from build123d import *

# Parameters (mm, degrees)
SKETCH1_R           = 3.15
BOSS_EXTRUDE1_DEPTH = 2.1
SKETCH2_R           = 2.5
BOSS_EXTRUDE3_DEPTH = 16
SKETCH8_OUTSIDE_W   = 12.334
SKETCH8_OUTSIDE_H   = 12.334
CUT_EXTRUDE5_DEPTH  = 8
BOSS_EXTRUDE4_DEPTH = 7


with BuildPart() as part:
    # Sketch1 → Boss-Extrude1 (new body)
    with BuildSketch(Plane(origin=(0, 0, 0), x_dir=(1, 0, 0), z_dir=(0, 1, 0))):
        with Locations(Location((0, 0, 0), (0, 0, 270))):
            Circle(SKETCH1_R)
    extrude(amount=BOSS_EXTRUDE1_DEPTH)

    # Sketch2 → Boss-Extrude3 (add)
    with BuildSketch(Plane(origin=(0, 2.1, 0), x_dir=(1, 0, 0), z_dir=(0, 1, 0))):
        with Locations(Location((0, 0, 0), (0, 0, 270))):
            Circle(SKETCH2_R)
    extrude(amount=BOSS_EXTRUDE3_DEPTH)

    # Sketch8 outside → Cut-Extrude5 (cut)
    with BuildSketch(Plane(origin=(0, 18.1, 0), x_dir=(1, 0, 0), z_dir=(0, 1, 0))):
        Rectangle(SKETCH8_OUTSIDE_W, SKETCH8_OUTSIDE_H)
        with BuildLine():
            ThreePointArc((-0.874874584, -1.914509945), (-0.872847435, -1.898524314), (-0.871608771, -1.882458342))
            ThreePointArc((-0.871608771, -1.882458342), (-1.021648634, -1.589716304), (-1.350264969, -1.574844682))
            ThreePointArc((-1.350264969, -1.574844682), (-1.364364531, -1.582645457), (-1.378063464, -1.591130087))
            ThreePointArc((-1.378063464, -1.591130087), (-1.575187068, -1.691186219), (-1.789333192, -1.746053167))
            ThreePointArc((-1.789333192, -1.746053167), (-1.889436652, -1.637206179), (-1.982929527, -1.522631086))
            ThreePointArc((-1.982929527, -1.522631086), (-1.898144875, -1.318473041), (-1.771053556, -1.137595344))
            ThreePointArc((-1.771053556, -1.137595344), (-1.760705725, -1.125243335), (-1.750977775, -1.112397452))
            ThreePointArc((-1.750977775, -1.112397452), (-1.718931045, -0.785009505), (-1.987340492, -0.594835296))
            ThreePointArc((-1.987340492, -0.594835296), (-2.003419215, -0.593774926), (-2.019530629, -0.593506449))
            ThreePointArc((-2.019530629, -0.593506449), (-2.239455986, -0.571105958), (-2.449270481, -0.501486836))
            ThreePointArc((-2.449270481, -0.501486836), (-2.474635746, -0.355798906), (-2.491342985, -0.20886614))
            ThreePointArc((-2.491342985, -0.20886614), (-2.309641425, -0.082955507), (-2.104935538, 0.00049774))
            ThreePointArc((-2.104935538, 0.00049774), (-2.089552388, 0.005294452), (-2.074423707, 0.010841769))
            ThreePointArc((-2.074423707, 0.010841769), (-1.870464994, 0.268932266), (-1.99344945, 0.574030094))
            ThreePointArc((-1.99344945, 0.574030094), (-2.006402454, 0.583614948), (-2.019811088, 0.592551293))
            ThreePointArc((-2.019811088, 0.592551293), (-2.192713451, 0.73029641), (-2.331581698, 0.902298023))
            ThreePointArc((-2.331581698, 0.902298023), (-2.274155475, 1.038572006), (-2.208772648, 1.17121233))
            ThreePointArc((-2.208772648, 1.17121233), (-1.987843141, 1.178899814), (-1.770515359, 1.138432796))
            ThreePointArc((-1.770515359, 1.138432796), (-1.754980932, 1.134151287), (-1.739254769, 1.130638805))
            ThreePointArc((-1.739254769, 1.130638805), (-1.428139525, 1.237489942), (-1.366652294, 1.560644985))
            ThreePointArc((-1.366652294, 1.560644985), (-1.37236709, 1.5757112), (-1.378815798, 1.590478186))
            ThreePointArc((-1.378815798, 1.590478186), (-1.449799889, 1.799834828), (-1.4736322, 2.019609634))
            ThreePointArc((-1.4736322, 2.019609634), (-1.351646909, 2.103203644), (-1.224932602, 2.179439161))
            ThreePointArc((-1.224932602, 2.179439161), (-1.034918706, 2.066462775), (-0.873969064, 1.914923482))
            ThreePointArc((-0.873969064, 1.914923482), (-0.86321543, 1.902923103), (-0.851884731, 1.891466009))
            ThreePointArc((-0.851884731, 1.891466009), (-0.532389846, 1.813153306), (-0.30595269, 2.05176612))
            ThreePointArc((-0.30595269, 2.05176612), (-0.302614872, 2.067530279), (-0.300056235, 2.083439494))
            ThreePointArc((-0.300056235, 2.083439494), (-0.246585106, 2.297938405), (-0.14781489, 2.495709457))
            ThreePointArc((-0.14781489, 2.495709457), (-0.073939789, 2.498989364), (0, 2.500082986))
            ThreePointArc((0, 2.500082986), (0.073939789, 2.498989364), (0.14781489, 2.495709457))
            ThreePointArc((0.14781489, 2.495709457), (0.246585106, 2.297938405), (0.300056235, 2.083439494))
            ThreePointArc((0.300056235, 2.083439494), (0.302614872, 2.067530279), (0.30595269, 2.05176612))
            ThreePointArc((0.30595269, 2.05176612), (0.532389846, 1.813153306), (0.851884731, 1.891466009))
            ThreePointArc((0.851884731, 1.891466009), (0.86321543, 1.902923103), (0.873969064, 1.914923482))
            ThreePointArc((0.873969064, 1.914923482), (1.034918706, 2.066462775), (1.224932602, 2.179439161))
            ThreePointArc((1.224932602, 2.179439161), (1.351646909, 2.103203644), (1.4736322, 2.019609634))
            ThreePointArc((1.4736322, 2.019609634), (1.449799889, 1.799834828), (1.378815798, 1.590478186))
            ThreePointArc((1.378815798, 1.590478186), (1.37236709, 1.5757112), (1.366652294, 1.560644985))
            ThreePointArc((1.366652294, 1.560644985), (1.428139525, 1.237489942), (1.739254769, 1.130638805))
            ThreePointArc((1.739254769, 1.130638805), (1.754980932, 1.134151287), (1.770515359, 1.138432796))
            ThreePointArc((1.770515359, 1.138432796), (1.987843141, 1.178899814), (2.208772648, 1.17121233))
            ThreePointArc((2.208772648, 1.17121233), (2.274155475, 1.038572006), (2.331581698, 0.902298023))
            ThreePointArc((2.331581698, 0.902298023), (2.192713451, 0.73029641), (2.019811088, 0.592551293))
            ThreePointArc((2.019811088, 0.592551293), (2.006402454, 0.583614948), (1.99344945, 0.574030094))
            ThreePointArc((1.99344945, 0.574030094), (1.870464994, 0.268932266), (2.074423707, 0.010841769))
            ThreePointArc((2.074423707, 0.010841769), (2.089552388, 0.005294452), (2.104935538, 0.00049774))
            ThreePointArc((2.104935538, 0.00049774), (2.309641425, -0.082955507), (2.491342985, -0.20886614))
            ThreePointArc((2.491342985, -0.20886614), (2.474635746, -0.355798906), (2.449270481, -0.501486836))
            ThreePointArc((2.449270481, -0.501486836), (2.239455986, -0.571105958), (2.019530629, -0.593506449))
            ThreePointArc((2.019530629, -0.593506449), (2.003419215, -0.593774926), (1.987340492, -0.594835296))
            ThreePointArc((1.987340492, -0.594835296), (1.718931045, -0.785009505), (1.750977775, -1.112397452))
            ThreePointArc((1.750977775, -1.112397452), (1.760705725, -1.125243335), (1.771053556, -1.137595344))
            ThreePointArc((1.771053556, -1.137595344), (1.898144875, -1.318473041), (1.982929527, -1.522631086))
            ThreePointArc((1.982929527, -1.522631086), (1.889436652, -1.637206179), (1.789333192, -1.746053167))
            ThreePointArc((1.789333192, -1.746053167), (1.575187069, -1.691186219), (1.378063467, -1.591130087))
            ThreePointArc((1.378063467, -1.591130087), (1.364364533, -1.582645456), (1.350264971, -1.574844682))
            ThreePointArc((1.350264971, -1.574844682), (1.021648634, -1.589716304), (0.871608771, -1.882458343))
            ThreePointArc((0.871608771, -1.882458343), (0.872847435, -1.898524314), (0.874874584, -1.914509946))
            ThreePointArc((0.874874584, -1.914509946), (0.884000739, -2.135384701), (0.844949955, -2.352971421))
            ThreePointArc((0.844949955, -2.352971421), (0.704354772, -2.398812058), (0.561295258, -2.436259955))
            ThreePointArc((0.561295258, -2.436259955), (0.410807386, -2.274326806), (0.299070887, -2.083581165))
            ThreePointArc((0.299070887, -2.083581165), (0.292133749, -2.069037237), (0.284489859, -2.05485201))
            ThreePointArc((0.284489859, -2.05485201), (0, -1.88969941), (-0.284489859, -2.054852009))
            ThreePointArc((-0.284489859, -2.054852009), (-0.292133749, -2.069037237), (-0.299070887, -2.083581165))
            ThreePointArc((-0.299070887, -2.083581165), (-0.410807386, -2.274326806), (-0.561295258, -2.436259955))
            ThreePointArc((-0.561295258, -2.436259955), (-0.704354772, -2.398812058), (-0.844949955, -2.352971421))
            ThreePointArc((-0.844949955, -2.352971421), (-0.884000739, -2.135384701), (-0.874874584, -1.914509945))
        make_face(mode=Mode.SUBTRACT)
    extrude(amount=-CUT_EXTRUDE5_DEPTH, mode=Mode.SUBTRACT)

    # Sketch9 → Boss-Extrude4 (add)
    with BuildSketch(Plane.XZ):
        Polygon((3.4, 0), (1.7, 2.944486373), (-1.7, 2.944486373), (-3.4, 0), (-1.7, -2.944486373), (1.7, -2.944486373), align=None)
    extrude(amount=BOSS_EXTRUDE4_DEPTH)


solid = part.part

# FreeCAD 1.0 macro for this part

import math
import FreeCAD as App
import Part
import Sketcher
from FreeCAD import Vector
Q = App.Units.Quantity

doc = App.newDocument("Part")
params = doc.addObject("Spreadsheet::Sheet", "Params")
for row, (alias, value) in enumerate([
    ("sketch1_diameter", "6.3 mm"),
    ("pad1_length", "2.1 mm"),
    ("sketch2_diameter", "5 mm"),
    ("pad2_length", "16 mm"),
    ("pocket1_length", "8 mm"),
    ("sketch4_width", "3.4 mm"),
    ("sketch4_length", "3.4 mm"),
    ("pad3_length", "7 mm"),
], start=1):
    params.set(f"A{row}", alias)
    params.set(f"B{row}", "=" + value)
    params.setAlias(f"B{row}", alias)

body = doc.addObject("PartDesign::Body", "Body")

sketch1 = body.newObject("Sketcher::SketchObject", "Sketch")
sketch1.AttachmentSupport = (doc.getObject("XZ_Plane"), [""])
sketch1.MapMode = "FlatFace"
sketch1.addGeometry(Part.Circle(Vector(0, 0, 0), Vector(0, 0, 1), 3.15), False)
sketch1.addConstraint(Sketcher.Constraint("Coincident", 0, 3, -1, 1))
sketch1.addConstraint(Sketcher.Constraint("Diameter", 0, Q("6.3 mm")))
sketch1.setExpression("Constraints[1]", "Params.sketch1_diameter")
pad1 = body.newObject("PartDesign::Pad", "Pad")
pad1.Profile = sketch1
pad1.setExpression("Length", "Params.pad1_length")
pad1.Reversed = True

sketch2 = body.newObject("Sketcher::SketchObject", "Sketch001")
sketch2.AttachmentSupport = (doc.getObject("XZ_Plane"), [""])
sketch2.MapMode = "FlatFace"
sketch2.AttachmentOffset = App.Placement(Vector(0, 0, -2.1), App.Rotation())
sketch2.addGeometry(Part.Circle(Vector(0, 0, 0), Vector(0, 0, 1), 2.5), False)
sketch2.addConstraint(Sketcher.Constraint("Coincident", 0, 3, -1, 1))
sketch2.addConstraint(Sketcher.Constraint("Diameter", 0, Q("5 mm")))
sketch2.setExpression("Constraints[1]", "Params.sketch2_diameter")
pad2 = body.newObject("PartDesign::Pad", "Pad001")
pad2.Profile = sketch2
pad2.setExpression("Length", "Params.pad2_length")
pad2.Reversed = True

sketch3 = body.newObject("Sketcher::SketchObject", "Sketch002")
sketch3.AttachmentSupport = (doc.getObject("XZ_Plane"), [""])
sketch3.MapMode = "FlatFace"
sketch3.AttachmentOffset = App.Placement(Vector(0, 0, -18.1), App.Rotation())
sketch3.addGeometry(Part.LineSegment(Vector(-6.167, -6.167, 0), Vector(-6.167, 6.167, 0)), False)
sketch3.addGeometry(Part.LineSegment(Vector(-6.167, 6.167, 0), Vector(6.167, 6.167, 0)), False)
sketch3.addGeometry(Part.LineSegment(Vector(6.167, 6.167, 0), Vector(6.167, -6.167, 0)), False)
sketch3.addGeometry(Part.LineSegment(Vector(6.167, -6.167, 0), Vector(-6.167, -6.167, 0)), False)
sketch3.addGeometry(Part.ArcOfCircle(Part.Circle(Vector(0.12566, 2.066476, 0), Vector(0, 0, 1), 1.01201), math.radians(163.554967), math.radians(188.636364)), False)
sketch3.addGeometry(Part.ArcOfCircle(Part.Circle(Vector(-1.198766, 1.865316, 0), Vector(0, 0, 1), 0.327606), math.radians(2.999483), math.radians(8.636363)), False)
sketch3.addGeometry(Part.ArcOfCircle(Part.Circle(Vector(-1.198766, 1.865316, 0), Vector(0, 0, 1), 0.327606), math.radians(-117.544936), math.radians(2.999482)), False)
sketch3.addGeometry(Part.ArcOfCircle(Part.Circle(Vector(-1.198765, 1.865316, 0), Vector(0, 0, 1), 0.327606), math.radians(-123.181813), math.radians(-117.544943)), False)
sketch3.addGeometry(Part.ArcOfCircle(Part.Circle(Vector(-1.931934, 0.744141, 0), Vector(0, 0, 1), 1.01201), math.radians(56.818182), math.radians(81.899578)), False)
sketch3.addGeometry(Part.ArcOfCircle(Part.Circle(Vector(0, 0, 0), Vector(0, 0, 1), 2.500083), math.radians(135.701377), math.radians(142.480441)), False)
sketch3.addGeometry(Part.ArcOfCircle(Part.Circle(Vector(-1.011509, 1.806367, 0), Vector(0, 0, 1), 1.01201), math.radians(-163.71776), math.radians(-138.636363)), False)
sketch3.addGeometry(Part.ArcOfCircle(Part.Circle(Vector(-2.016932, 0.921102, 0), Vector(0, 0, 1), 0.327606), math.radians(35.726754), math.radians(41.363637)), False)
sketch3.addGeometry(Part.ArcOfCircle(Part.Circle(Vector(-2.016932, 0.921102, 0), Vector(0, 0, 1), 0.327606), math.radians(-84.817664), math.radians(35.726754)), False)
sketch3.addGeometry(Part.ArcOfCircle(Part.Circle(Vector(-2.016932, 0.921102, 0), Vector(0, 0, 1), 0.327606), math.radians(-90.454544), math.radians(-84.817665)), False)
sketch3.addGeometry(Part.ArcOfCircle(Part.Circle(Vector(-2.027559, -0.418471, 0), Vector(0, 0, 1), 1.01201), math.radians(89.545454), math.radians(114.626851)), False)
sketch3.addGeometry(Part.ArcOfCircle(Part.Circle(Vector(0, 0, 0), Vector(0, 0, 1), 2.500083), math.radians(168.42865), math.radians(175.207714)), False)
sketch3.addGeometry(Part.ArcOfCircle(Part.Circle(Vector(-1.827532, 0.97275, 0), Vector(0, 0, 1), 1.01201), math.radians(-130.990487), math.radians(-105.909091)), False)
sketch3.addGeometry(Part.ArcOfCircle(Part.Circle(Vector(-2.194736, -0.315556, 0), Vector(0, 0, 1), 0.327606), math.radians(68.454031), math.radians(74.090906)), False)
sketch3.addGeometry(Part.ArcOfCircle(Part.Circle(Vector(-2.194736, -0.315555, 0), Vector(0, 0, 1), 0.327606), math.radians(-52.090391), math.radians(68.454027)), False)
sketch3.addGeometry(Part.ArcOfCircle(Part.Circle(Vector(-2.194736, -0.315555, 0), Vector(0, 0, 1), 0.327606), math.radians(-57.727271), math.radians(-52.090394)), False)
sketch3.addGeometry(Part.ArcOfCircle(Part.Circle(Vector(-1.479449, -1.448222, 0), Vector(0, 0, 1), 1.01201), math.radians(122.272727), math.radians(147.354123)), False)
sketch3.addGeometry(Part.ArcOfCircle(Part.Circle(Vector(0, 0, 0), Vector(0, 0, 1), 2.500083), math.radians(-158.844078), math.radians(-152.065013)), False)
sketch3.addGeometry(Part.ArcOfCircle(Part.Circle(Vector(-2.063326, -0.169709, 0), Vector(0, 0, 1), 1.01201), math.radians(-98.263214), math.radians(-73.181818)), False)
sketch3.addGeometry(Part.ArcOfCircle(Part.Circle(Vector(-1.675727, -1.452026, 0), Vector(0, 0, 1), 0.327605), math.radians(101.181298), math.radians(106.818186)), False)
sketch3.addGeometry(Part.ArcOfCircle(Part.Circle(Vector(-1.675727, -1.452026, 0), Vector(0, 0, 1), 0.327606), math.radians(-19.363118), math.radians(101.1813)), False)
sketch3.addGeometry(Part.ArcOfCircle(Part.Circle(Vector(-1.675727, -1.452026, 0), Vector(0, 0, 1), 0.327605), math.radians(-25.000002), math.radians(-19.363115)), False)
sketch3.addGeometry(Part.ArcOfCircle(Part.Circle(Vector(-0.461624, -2.018172, 0), Vector(0, 0, 1), 1.01201), math.radians(155), math.radians(180.081396)), False)
sketch3.addGeometry(Part.ArcOfCircle(Part.Circle(Vector(0, 0, 0), Vector(0, 0, 1), 2.500083), math.radians(-126.116805), math.radians(-119.337741)), False)
sketch3.addGeometry(Part.ArcOfCircle(Part.Circle(Vector(-1.644028, -1.258287, 0), Vector(0, 0, 1), 1.01201), math.radians(-65.535942), math.radians(-40.454545)), False)
sketch3.addGeometry(Part.ArcOfCircle(Part.Circle(Vector(-0.624687, -2.127489, 0), Vector(0, 0, 1), 0.327606), math.radians(133.908575), math.radians(139.545451)), False)
sketch3.addGeometry(Part.ArcOfCircle(Part.Circle(Vector(-0.624687, -2.127489, 0), Vector(0, 0, 1), 0.327606), math.radians(13.364155), math.radians(133.908573)), False)
sketch3.addGeometry(Part.ArcOfCircle(Part.Circle(Vector(-0.624687, -2.127489, 0), Vector(0, 0, 1), 0.327606), math.radians(7.727271), math.radians(13.364155)), False)
sketch3.addGeometry(Part.ArcOfCircle(Part.Circle(Vector(0.702764, -1.947367, 0), Vector(0, 0, 1), 1.01201), math.radians(-172.272727), math.radians(-147.191331)), False)
sketch3.addGeometry(Part.ArcOfCircle(Part.Circle(Vector(0, 0.000001, 0), Vector(0, 0, 1), 2.500084), math.radians(-93.389531), math.radians(-90.000001)), False)
sketch3.addGeometry(Part.ArcOfCircle(Part.Circle(Vector(0, 0.000001, 0), Vector(0, 0, 1), 2.500084), math.radians(-89.999999), math.radians(-86.610469)), False)
sketch3.addGeometry(Part.ArcOfCircle(Part.Circle(Vector(-0.702764, -1.947367, 0), Vector(0, 0, 1), 1.01201), math.radians(-32.808669), math.radians(-7.727273)), False)
sketch3.addGeometry(Part.ArcOfCircle(Part.Circle(Vector(0.624687, -2.127489, 0), Vector(0, 0, 1), 0.327606), math.radians(166.635845), math.radians(172.272729)), False)
sketch3.addGeometry(Part.ArcOfCircle(Part.Circle(Vector(0.624687, -2.127489, 0), Vector(0, 0, 1), 0.327606), math.radians(46.091427), math.radians(166.635845)), False)
sketch3.addGeometry(Part.ArcOfCircle(Part.Circle(Vector(0.624687, -2.127489, 0), Vector(0, 0, 1), 0.327606), math.radians(40.454549), math.radians(46.091425)), False)
sketch3.addGeometry(Part.ArcOfCircle(Part.Circle(Vector(1.644028, -1.258287, 0), Vector(0, 0, 1), 1.01201), math.radians(-139.545455), math.radians(-114.464058)), False)
sketch3.addGeometry(Part.ArcOfCircle(Part.Circle(Vector(0, 0, 0), Vector(0, 0, 1), 2.500083), math.radians(-60.662259), math.radians(-53.883195)), False)
sketch3.addGeometry(Part.ArcOfCircle(Part.Circle(Vector(0.461624, -2.018172, 0), Vector(0, 0, 1), 1.01201), math.radians(-0.081396), math.radians(25)), False)
sketch3.addGeometry(Part.ArcOfCircle(Part.Circle(Vector(1.675727, -1.452026, 0), Vector(0, 0, 1), 0.327605), math.radians(-160.636885), math.radians(-154.999998)), False)
sketch3.addGeometry(Part.ArcOfCircle(Part.Circle(Vector(1.675727, -1.452026, 0), Vector(0, 0, 1), 0.327606), math.radians(78.8187), math.radians(199.363118)), False)
sketch3.addGeometry(Part.ArcOfCircle(Part.Circle(Vector(1.675727, -1.452026, 0), Vector(0, 0, 1), 0.327605), math.radians(73.181814), math.radians(78.818702)), False)
sketch3.addGeometry(Part.ArcOfCircle(Part.Circle(Vector(2.063326, -0.169709, 0), Vector(0, 0, 1), 1.01201), math.radians(-106.818182), math.radians(-81.736786)), False)
sketch3.addGeometry(Part.ArcOfCircle(Part.Circle(Vector(0, 0, 0), Vector(0, 0, 1), 2.500083), math.radians(-27.934987), math.radians(-21.155922)), False)
sketch3.addGeometry(Part.ArcOfCircle(Part.Circle(Vector(1.479449, -1.448222, 0), Vector(0, 0, 1), 1.01201), math.radians(32.645877), math.radians(57.727273)), False)
sketch3.addGeometry(Part.ArcOfCircle(Part.Circle(Vector(2.194736, -0.315555, 0), Vector(0, 0, 1), 0.327606), math.radians(-127.909606), math.radians(-122.272729)), False)
sketch3.addGeometry(Part.ArcOfCircle(Part.Circle(Vector(2.194736, -0.315555, 0), Vector(0, 0, 1), 0.327606), math.radians(111.545973), math.radians(232.090391)), False)
sketch3.addGeometry(Part.ArcOfCircle(Part.Circle(Vector(2.194736, -0.315556, 0), Vector(0, 0, 1), 0.327606), math.radians(105.909094), math.radians(111.545969)), False)
sketch3.addGeometry(Part.ArcOfCircle(Part.Circle(Vector(1.827532, 0.97275, 0), Vector(0, 0, 1), 1.01201), math.radians(-74.090909), math.radians(-49.009513)), False)
sketch3.addGeometry(Part.ArcOfCircle(Part.Circle(Vector(0, 0, 0), Vector(0, 0, 1), 2.500083), math.radians(4.792286), math.radians(11.57135)), False)
sketch3.addGeometry(Part.ArcOfCircle(Part.Circle(Vector(2.027559, -0.418471, 0), Vector(0, 0, 1), 1.01201), math.radians(65.373149), math.radians(90.454546)), False)
sketch3.addGeometry(Part.ArcOfCircle(Part.Circle(Vector(2.016932, 0.921102, 0), Vector(0, 0, 1), 0.327606), math.radians(-95.182335), math.radians(-89.545456)), False)
sketch3.addGeometry(Part.ArcOfCircle(Part.Circle(Vector(2.016932, 0.921102, 0), Vector(0, 0, 1), 0.327606), math.radians(144.273246), math.radians(264.817664)), False)
sketch3.addGeometry(Part.ArcOfCircle(Part.Circle(Vector(2.016932, 0.921102, 0), Vector(0, 0, 1), 0.327606), math.radians(138.636363), math.radians(144.273246)), False)
sketch3.addGeometry(Part.ArcOfCircle(Part.Circle(Vector(1.011509, 1.806367, 0), Vector(0, 0, 1), 1.01201), math.radians(-41.363637), math.radians(-16.28224)), False)
sketch3.addGeometry(Part.ArcOfCircle(Part.Circle(Vector(0, 0, 0), Vector(0, 0, 1), 2.500083), math.radians(37.519559), math.radians(44.298623)), False)
sketch3.addGeometry(Part.ArcOfCircle(Part.Circle(Vector(1.931934, 0.744141, 0), Vector(0, 0, 1), 1.01201), math.radians(98.100422), math.radians(123.181818)), False)
sketch3.addGeometry(Part.ArcOfCircle(Part.Circle(Vector(1.198766, 1.865316, 0), Vector(0, 0, 1), 0.327606), math.radians(-62.455062), math.radians(-56.818183)), False)
sketch3.addGeometry(Part.ArcOfCircle(Part.Circle(Vector(1.198766, 1.865316, 0), Vector(0, 0, 1), 0.327606), math.radians(177.000518), math.radians(297.544936)), False)
sketch3.addGeometry(Part.ArcOfCircle(Part.Circle(Vector(1.198766, 1.865316, 0), Vector(0, 0, 1), 0.327606), math.radians(171.363638), math.radians(177.000516)), False)
sketch3.addGeometry(Part.ArcOfCircle(Part.Circle(Vector(-0.12566, 2.066476, 0), Vector(0, 0, 1), 1.01201), math.radians(-8.636364), math.radians(16.445033)), False)
sketch3.addGeometry(Part.ArcOfCircle(Part.Circle(Vector(0, 0, 0), Vector(0, 0, 1), 2.500083), math.radians(70.246832), math.radians(77.025896)), False)
sketch3.addGeometry(Part.ArcOfCircle(Part.Circle(Vector(1.222933, 1.670493, 0), Vector(0, 0, 1), 1.01201), math.radians(130.827695), math.radians(155.909091)), False)
sketch3.addGeometry(Part.ArcOfCircle(Part.Circle(Vector(0, 2.217305, 0), Vector(0, 0, 1), 0.327605), math.radians(-29.727794), math.radians(-24.090907)), False)
sketch3.addGeometry(Part.ArcOfCircle(Part.Circle(Vector(0, 2.217305, 0), Vector(0, 0, 1), 0.327606), math.radians(-150.272209), math.radians(-29.727791)), False)
sketch3.addGeometry(Part.ArcOfCircle(Part.Circle(Vector(0, 2.217305, 0), Vector(0, 0, 1), 0.327606), math.radians(-155.909092), math.radians(-150.272209)), False)
sketch3.addGeometry(Part.ArcOfCircle(Part.Circle(Vector(-1.222933, 1.670493, 0), Vector(0, 0, 1), 1.01201), math.radians(24.090909), math.radians(49.172305)), False)
sketch3.addGeometry(Part.ArcOfCircle(Part.Circle(Vector(0, 0, 0), Vector(0, 0, 1), 2.500083), math.radians(102.974104), math.radians(109.753168)), False)
sketch3.addConstraint(Sketcher.Constraint("Coincident", 0, 2, 1, 1))
sketch3.addConstraint(Sketcher.Constraint("Coincident", 1, 2, 2, 1))
sketch3.addConstraint(Sketcher.Constraint("Coincident", 2, 2, 3, 1))
sketch3.addConstraint(Sketcher.Constraint("Coincident", 3, 2, 0, 1))
sketch3.addConstraint(Sketcher.Constraint("Tangent", 4, 2, 5, 2))
sketch3.addConstraint(Sketcher.Constraint("Tangent", 5, 1, 6, 2))
sketch3.addConstraint(Sketcher.Constraint("Tangent", 6, 1, 7, 2))
sketch3.addConstraint(Sketcher.Constraint("Tangent", 7, 1, 8, 1))
sketch3.addConstraint(Sketcher.Constraint("Coincident", 8, 2, 9, 1))
sketch3.addConstraint(Sketcher.Constraint("Coincident", 9, 2, 10, 1))
sketch3.addConstraint(Sketcher.Constraint("Tangent", 10, 2, 11, 2))
sketch3.addConstraint(Sketcher.Constraint("Tangent", 11, 1, 12, 2))
sketch3.addConstraint(Sketcher.Constraint("Tangent", 12, 1, 13, 2))
sketch3.addConstraint(Sketcher.Constraint("Tangent", 13, 1, 14, 1))
sketch3.addConstraint(Sketcher.Constraint("Coincident", 14, 2, 15, 1))
sketch3.addConstraint(Sketcher.Constraint("Coincident", 15, 2, 16, 1))
sketch3.addConstraint(Sketcher.Constraint("Tangent", 16, 2, 17, 2))
sketch3.addConstraint(Sketcher.Constraint("Tangent", 17, 1, 18, 2))
sketch3.addConstraint(Sketcher.Constraint("Tangent", 18, 1, 19, 2))
sketch3.addConstraint(Sketcher.Constraint("Tangent", 19, 1, 20, 1))
sketch3.addConstraint(Sketcher.Constraint("Coincident", 20, 2, 21, 1))
sketch3.addConstraint(Sketcher.Constraint("Coincident", 21, 2, 22, 1))
sketch3.addConstraint(Sketcher.Constraint("Tangent", 22, 2, 23, 2))
sketch3.addConstraint(Sketcher.Constraint("Tangent", 23, 1, 24, 2))
sketch3.addConstraint(Sketcher.Constraint("Tangent", 24, 1, 25, 2))
sketch3.addConstraint(Sketcher.Constraint("Tangent", 25, 1, 26, 1))
sketch3.addConstraint(Sketcher.Constraint("Coincident", 26, 2, 27, 1))
sketch3.addConstraint(Sketcher.Constraint("Coincident", 27, 2, 28, 1))
sketch3.addConstraint(Sketcher.Constraint("Tangent", 28, 2, 29, 2))
sketch3.addConstraint(Sketcher.Constraint("Tangent", 29, 1, 30, 2))
sketch3.addConstraint(Sketcher.Constraint("Tangent", 30, 1, 31, 2))
sketch3.addConstraint(Sketcher.Constraint("Tangent", 31, 1, 32, 1))
sketch3.addConstraint(Sketcher.Constraint("Coincident", 32, 2, 33, 1))
sketch3.addConstraint(Sketcher.Constraint("Tangent", 33, 2, 34, 1))
sketch3.addConstraint(Sketcher.Constraint("Coincident", 34, 2, 35, 1))
sketch3.addConstraint(Sketcher.Constraint("Tangent", 35, 2, 36, 2))
sketch3.addConstraint(Sketcher.Constraint("Tangent", 36, 1, 37, 2))
sketch3.addConstraint(Sketcher.Constraint("Tangent", 37, 1, 38, 2))
sketch3.addConstraint(Sketcher.Constraint("Tangent", 38, 1, 39, 1))
sketch3.addConstraint(Sketcher.Constraint("Coincident", 39, 2, 40, 1))
sketch3.addConstraint(Sketcher.Constraint("Coincident", 40, 2, 41, 1))
sketch3.addConstraint(Sketcher.Constraint("Tangent", 41, 2, 42, 2))
sketch3.addConstraint(Sketcher.Constraint("Tangent", 42, 1, 43, 2))
sketch3.addConstraint(Sketcher.Constraint("Tangent", 43, 1, 44, 2))
sketch3.addConstraint(Sketcher.Constraint("Tangent", 44, 1, 45, 1))
sketch3.addConstraint(Sketcher.Constraint("Coincident", 45, 2, 46, 1))
sketch3.addConstraint(Sketcher.Constraint("Coincident", 46, 2, 47, 1))
sketch3.addConstraint(Sketcher.Constraint("Tangent", 47, 2, 48, 2))
sketch3.addConstraint(Sketcher.Constraint("Tangent", 48, 1, 49, 2))
sketch3.addConstraint(Sketcher.Constraint("Tangent", 49, 1, 50, 2))
sketch3.addConstraint(Sketcher.Constraint("Tangent", 50, 1, 51, 1))
sketch3.addConstraint(Sketcher.Constraint("Coincident", 51, 2, 52, 1))
sketch3.addConstraint(Sketcher.Constraint("Coincident", 52, 2, 53, 1))
sketch3.addConstraint(Sketcher.Constraint("Tangent", 53, 2, 54, 2))
sketch3.addConstraint(Sketcher.Constraint("Tangent", 54, 1, 55, 2))
sketch3.addConstraint(Sketcher.Constraint("Tangent", 55, 1, 56, 2))
sketch3.addConstraint(Sketcher.Constraint("Tangent", 56, 1, 57, 1))
sketch3.addConstraint(Sketcher.Constraint("Coincident", 57, 2, 58, 1))
sketch3.addConstraint(Sketcher.Constraint("Coincident", 58, 2, 59, 1))
sketch3.addConstraint(Sketcher.Constraint("Tangent", 59, 2, 60, 2))
sketch3.addConstraint(Sketcher.Constraint("Tangent", 60, 1, 61, 2))
sketch3.addConstraint(Sketcher.Constraint("Tangent", 61, 1, 62, 2))
sketch3.addConstraint(Sketcher.Constraint("Tangent", 62, 1, 63, 1))
sketch3.addConstraint(Sketcher.Constraint("Coincident", 63, 2, 64, 1))
sketch3.addConstraint(Sketcher.Constraint("Coincident", 64, 2, 65, 1))
sketch3.addConstraint(Sketcher.Constraint("Tangent", 65, 2, 66, 2))
sketch3.addConstraint(Sketcher.Constraint("Tangent", 66, 1, 67, 2))
sketch3.addConstraint(Sketcher.Constraint("Tangent", 67, 1, 68, 2))
sketch3.addConstraint(Sketcher.Constraint("Tangent", 68, 1, 69, 1))
sketch3.addConstraint(Sketcher.Constraint("Coincident", 69, 2, 70, 1))
sketch3.addConstraint(Sketcher.Constraint("Coincident", 70, 2, 4, 1))
sketch3.addConstraint(Sketcher.Constraint("Vertical", 0))
sketch3.addConstraint(Sketcher.Constraint("Horizontal", 1))
sketch3.addConstraint(Sketcher.Constraint("Vertical", 2))
sketch3.addConstraint(Sketcher.Constraint("Horizontal", 3))
sketch3.addConstraint(Sketcher.Constraint("Coincident", 9, 3, -1, 1))
sketch3.addConstraint(Sketcher.Constraint("Coincident", 15, 3, -1, 1))
sketch3.addConstraint(Sketcher.Constraint("Coincident", 21, 3, -1, 1))
sketch3.addConstraint(Sketcher.Constraint("Coincident", 27, 3, -1, 1))
sketch3.addConstraint(Sketcher.Constraint("Coincident", 33, 3, -1, 1))
sketch3.addConstraint(Sketcher.Constraint("Coincident", 40, 3, -1, 1))
sketch3.addConstraint(Sketcher.Constraint("Coincident", 46, 3, -1, 1))
sketch3.addConstraint(Sketcher.Constraint("Coincident", 52, 3, -1, 1))
sketch3.addConstraint(Sketcher.Constraint("Coincident", 58, 3, -1, 1))
sketch3.addConstraint(Sketcher.Constraint("Coincident", 64, 3, -1, 1))
sketch3.addConstraint(Sketcher.Constraint("Coincident", 70, 3, -1, 1))
sketch3.addConstraint(Sketcher.Constraint("Coincident", 7, 3, 5, 3))
sketch3.addConstraint(Sketcher.Constraint("Coincident", 13, 3, 11, 3))
sketch3.addConstraint(Sketcher.Constraint("Coincident", 19, 3, 17, 3))
sketch3.addConstraint(Sketcher.Constraint("Coincident", 25, 3, 23, 3))
sketch3.addConstraint(Sketcher.Constraint("Coincident", 31, 3, 29, 3))
sketch3.addConstraint(Sketcher.Constraint("Coincident", 38, 3, 36, 3))
sketch3.addConstraint(Sketcher.Constraint("Coincident", 44, 3, 42, 3))
sketch3.addConstraint(Sketcher.Constraint("Coincident", 50, 3, 48, 3))
sketch3.addConstraint(Sketcher.Constraint("Coincident", 56, 3, 54, 3))
sketch3.addConstraint(Sketcher.Constraint("Coincident", 62, 3, 60, 3))
sketch3.addConstraint(Sketcher.Constraint("Coincident", 68, 3, 66, 3))
sketch3.addConstraint(Sketcher.Constraint("Equal", 4, 8))
sketch3.addConstraint(Sketcher.Constraint("Equal", 8, 10))
sketch3.addConstraint(Sketcher.Constraint("Equal", 7, 11))
sketch3.addConstraint(Sketcher.Constraint("Equal", 10, 14))
sketch3.addConstraint(Sketcher.Constraint("Equal", 9, 15))
sketch3.addConstraint(Sketcher.Constraint("Equal", 14, 16))
sketch3.addConstraint(Sketcher.Constraint("Equal", 13, 17))
sketch3.addConstraint(Sketcher.Constraint("Equal", 16, 20))
sketch3.addConstraint(Sketcher.Constraint("Equal", 15, 21))
sketch3.addConstraint(Sketcher.Constraint("Equal", 20, 22))
sketch3.addConstraint(Sketcher.Constraint("Equal", 19, 23))
sketch3.addConstraint(Sketcher.Constraint("Equal", 22, 26))
sketch3.addConstraint(Sketcher.Constraint("Equal", 21, 27))
sketch3.addConstraint(Sketcher.Constraint("Equal", 26, 28))
sketch3.addConstraint(Sketcher.Constraint("Equal", 25, 29))
sketch3.addConstraint(Sketcher.Constraint("Equal", 28, 32))
sketch3.addConstraint(Sketcher.Constraint("Equal", 27, 33))
sketch3.addConstraint(Sketcher.Constraint("Equal", 33, 34))
sketch3.addConstraint(Sketcher.Constraint("Equal", 32, 35))
sketch3.addConstraint(Sketcher.Constraint("Equal", 31, 36))
sketch3.addConstraint(Sketcher.Constraint("Equal", 35, 39))
sketch3.addConstraint(Sketcher.Constraint("Equal", 34, 40))
sketch3.addConstraint(Sketcher.Constraint("Equal", 39, 41))
sketch3.addConstraint(Sketcher.Constraint("Equal", 38, 42))
sketch3.addConstraint(Sketcher.Constraint("Equal", 41, 45))
sketch3.addConstraint(Sketcher.Constraint("Equal", 40, 46))
sketch3.addConstraint(Sketcher.Constraint("Equal", 45, 47))
sketch3.addConstraint(Sketcher.Constraint("Equal", 44, 48))
sketch3.addConstraint(Sketcher.Constraint("Equal", 47, 51))
sketch3.addConstraint(Sketcher.Constraint("Equal", 46, 52))
sketch3.addConstraint(Sketcher.Constraint("Equal", 51, 53))
sketch3.addConstraint(Sketcher.Constraint("Equal", 50, 54))
sketch3.addConstraint(Sketcher.Constraint("Equal", 53, 57))
sketch3.addConstraint(Sketcher.Constraint("Equal", 52, 58))
sketch3.addConstraint(Sketcher.Constraint("Equal", 57, 59))
sketch3.addConstraint(Sketcher.Constraint("Equal", 56, 60))
sketch3.addConstraint(Sketcher.Constraint("Equal", 59, 63))
sketch3.addConstraint(Sketcher.Constraint("Equal", 58, 64))
sketch3.addConstraint(Sketcher.Constraint("Equal", 63, 65))
sketch3.addConstraint(Sketcher.Constraint("Equal", 62, 66))
sketch3.addConstraint(Sketcher.Constraint("Equal", 65, 69))
sketch3.addConstraint(Sketcher.Constraint("Equal", 64, 70))
sketch3.addConstraint(Sketcher.Constraint("Symmetric", 0, 2, 2, 2, -1, 1))
sketch3.addConstraint(Sketcher.Constraint("Symmetric", 32, 3, 35, 3, -2))
sketch3.addConstraint(Sketcher.Constraint("Symmetric", 28, 3, 39, 3, -2))
sketch3.addConstraint(Sketcher.Constraint("Symmetric", 26, 3, 41, 3, -2))
sketch3.addConstraint(Sketcher.Constraint("Symmetric", 22, 3, 45, 3, -2))
sketch3.addConstraint(Sketcher.Constraint("Symmetric", 20, 3, 47, 3, -2))
sketch3.addConstraint(Sketcher.Constraint("Symmetric", 16, 3, 51, 3, -2))
sketch3.addConstraint(Sketcher.Constraint("Symmetric", 14, 3, 53, 3, -2))
sketch3.addConstraint(Sketcher.Constraint("Symmetric", 10, 3, 57, 3, -2))
sketch3.addConstraint(Sketcher.Constraint("Symmetric", 8, 3, 59, 3, -2))
sketch3.addConstraint(Sketcher.Constraint("Symmetric", 4, 3, 63, 3, -2))
sketch3.addConstraint(Sketcher.Constraint("Symmetric", 65, 3, 69, 3, -2))
sketch3.addConstraint(Sketcher.Constraint("PointOnObject", 33, 2, -2))
sketch3.addConstraint(Sketcher.Constraint("Horizontal", 30, 1, 36, 1))
sketch3.addConstraint(Sketcher.Constraint("Horizontal", 29, 1, 37, 1))
sketch3.addConstraint(Sketcher.Constraint("Horizontal", 24, 1, 42, 1))
sketch3.addConstraint(Sketcher.Constraint("Horizontal", 23, 1, 43, 1))
sketch3.addConstraint(Sketcher.Constraint("Horizontal", 18, 1, 48, 1))
sketch3.addConstraint(Sketcher.Constraint("Horizontal", 17, 1, 49, 1))
sketch3.addConstraint(Sketcher.Constraint("Horizontal", 12, 1, 54, 1))
sketch3.addConstraint(Sketcher.Constraint("Horizontal", 11, 1, 55, 1))
sketch3.addConstraint(Sketcher.Constraint("Horizontal", 6, 1, 60, 1))
sketch3.addConstraint(Sketcher.Constraint("Horizontal", 5, 1, 61, 1))
sketch3.addConstraint(Sketcher.Constraint("Horizontal", 66, 1, 67, 1))
sketch3.addConstraint(Sketcher.Constraint("Equal", 3, 0))
sketch3.addConstraint(Sketcher.Constraint("DistanceX", 1, 1, 1, 2, Q("12.334 mm")))
sketch3.addConstraint(Sketcher.Constraint("Radius", 4, Q("1.01201 mm")))
sketch3.addConstraint(Sketcher.Constraint("Radius", 5, Q("0.327606 mm")))
sketch3.addConstraint(Sketcher.Constraint("Radius", 9, Q("2.500083 mm")))
sketch3.addConstraint(Sketcher.Constraint("DistanceY", -1, 1, 11, 3, Q("0.921102 mm")))
sketch3.addConstraint(Sketcher.Constraint("DistanceY", 20, 2, -1, 1, Q("0.902298 mm")))
sketch3.addConstraint(Sketcher.Constraint("DistanceX", -1, 1, 4, 3, Q("0.12566 mm")))
sketch3.addConstraint(Sketcher.Constraint("DistanceY", -1, 1, 8, 3, Q("0.744141 mm")))
sketch3.addConstraint(Sketcher.Constraint("DistanceX", 10, 3, -1, 1, Q("1.011509 mm")))
sketch3.addConstraint(Sketcher.Constraint("DistanceX", 11, 3, -1, 1, Q("2.016932 mm")))
sketch3.addConstraint(Sketcher.Constraint("DistanceX", 14, 3, -1, 1, Q("2.027559 mm")))
sketch3.addConstraint(Sketcher.Constraint("DistanceX", 16, 3, -1, 1, Q("1.827532 mm")))
sketch3.addConstraint(Sketcher.Constraint("DistanceY", -1, 1, 16, 3, Q("0.97275 mm")))
sketch3.addConstraint(Sketcher.Constraint("DistanceX", 20, 3, -1, 1, Q("1.479449 mm")))
sketch3.addConstraint(Sketcher.Constraint("DistanceY", 22, 3, -1, 1, Q("0.169709 mm")))
sketch3.addConstraint(Sketcher.Constraint("DistanceY", 26, 3, -1, 1, Q("2.018172 mm")))
sketch3.addConstraint(Sketcher.Constraint("DistanceX", 28, 3, -1, 1, Q("1.644028 mm")))
sketch3.addConstraint(Sketcher.Constraint("DistanceY", 29, 3, -1, 1, Q("2.127489 mm")))
sketch3.addConstraint(Sketcher.Constraint("DistanceY", -1, 1, 4, 2, Q("1.91451 mm")))
sketch3.addConstraint(Sketcher.Constraint("DistanceX", 5, 1, -1, 1, Q("0.871609 mm")))
sketch3.addConstraint(Sketcher.Constraint("DistanceY", -1, 1, 5, 1, Q("1.882458 mm")))
sketch3.addConstraint(Sketcher.Constraint("DistanceX", 12, 1, -1, 1, Q("1.98734 mm")))
sketch3.addConstraint(Sketcher.Constraint("DistanceY", 17, 1, -1, 1, Q("0.010842 mm")))
sketch3.addConstraint(Sketcher.Constraint("DistanceX", 18, 1, -1, 1, Q("1.993449 mm")))
sketch3.addConstraint(Sketcher.Constraint("DistanceY", 23, 1, -1, 1, Q("1.130639 mm")))
sketch3.addConstraint(Sketcher.Constraint("DistanceY", 25, 1, -1, 1, Q("1.590478 mm")))
sketch3.addConstraint(Sketcher.Constraint("DistanceY", 26, 2, -1, 1, Q("2.01961 mm")))
sketch3.addConstraint(Sketcher.Constraint("DistanceY", 27, 2, -1, 1, Q("2.179439 mm")))
sketch3.addConstraint(Sketcher.Constraint("DistanceY", 31, 1, -1, 1, Q("2.083439 mm")))
sketch3.addConstraint(Sketcher.Constraint("DistanceY", -1, 1, 64, 2, Q("2.43626 mm")))
sketch3.addConstraint(Sketcher.Constraint("DistanceX", -1, 1, 65, 2, Q("0.299071 mm")))
sketch3.addConstraint(Sketcher.Constraint("DistanceX", -1, 1, 66, 1, Q("0.28449 mm")))
sketch3.addConstraint(Sketcher.Constraint("DistanceX", 6, 1, -1, 1, Q("1.350265 mm")))
sketch3.addConstraint(Sketcher.Constraint("DistanceX", 11, 1, -1, 1, Q("1.750978 mm")))
sketch3.addConstraint(Sketcher.Constraint("DistanceX", 24, 1, -1, 1, Q("1.366652 mm")))
sketch3.addConstraint(Sketcher.Constraint("DistanceX", 29, 1, -1, 1, Q("0.851885 mm")))
sketch3.addConstraint(Sketcher.Constraint("DistanceX", 30, 1, -1, 1, Q("0.305953 mm")))
pocket1 = body.newObject("PartDesign::Pocket", "Pocket")
pocket1.Profile = sketch3
pocket1.setExpression("Length", "Params.pocket1_length")
pocket1.Reversed = True

sketch4 = body.newObject("Sketcher::SketchObject", "Sketch003")
sketch4.AttachmentSupport = (doc.getObject("XZ_Plane"), [""])
sketch4.MapMode = "FlatFace"
sketch4.addGeometry(Part.LineSegment(Vector(3.4, 0, 0), Vector(1.7, 2.944486, 0)), False)
sketch4.addGeometry(Part.LineSegment(Vector(1.7, 2.944486, 0), Vector(-1.7, 2.944486, 0)), False)
sketch4.addGeometry(Part.LineSegment(Vector(-1.7, 2.944486, 0), Vector(-3.4, 0, 0)), False)
sketch4.addGeometry(Part.LineSegment(Vector(-3.4, 0, 0), Vector(-1.7, -2.944486, 0)), False)
sketch4.addGeometry(Part.LineSegment(Vector(-1.7, -2.944486, 0), Vector(1.7, -2.944486, 0)), False)
sketch4.addGeometry(Part.LineSegment(Vector(1.7, -2.944486, 0), Vector(3.4, 0, 0)), False)
sketch4.addConstraint(Sketcher.Constraint("Coincident", 0, 2, 1, 1))
sketch4.addConstraint(Sketcher.Constraint("Coincident", 1, 2, 2, 1))
sketch4.addConstraint(Sketcher.Constraint("Coincident", 2, 2, 3, 1))
sketch4.addConstraint(Sketcher.Constraint("Coincident", 3, 2, 4, 1))
sketch4.addConstraint(Sketcher.Constraint("Coincident", 4, 2, 5, 1))
sketch4.addConstraint(Sketcher.Constraint("Coincident", 5, 2, 0, 1))
sketch4.addConstraint(Sketcher.Constraint("Horizontal", 1))
sketch4.addConstraint(Sketcher.Constraint("Horizontal", 4))
sketch4.addConstraint(Sketcher.Constraint("Symmetric", 0, 2, 3, 2, -1, 1))
sketch4.addConstraint(Sketcher.Constraint("Symmetric", 2, 2, 5, 2, -1, 1))
sketch4.addConstraint(Sketcher.Constraint("PointOnObject", 2, 2, -1))
sketch4.addConstraint(Sketcher.Constraint("Parallel", 2, 5))
sketch4.addConstraint(Sketcher.Constraint("Vertical", 1, 2, 3, 2))
sketch4.addConstraint(Sketcher.Constraint("Angle", 0, Q("120 deg")))
sketch4.addConstraint(Sketcher.Constraint("DistanceX", 1, 2, 1, 1, Q("3.4 mm")))
sketch4.addConstraint(Sketcher.Constraint("Distance", 0, Q("3.4 mm")))
sketch4.setExpression("Constraints[14]", "Params.sketch4_width")
sketch4.setExpression("Constraints[15]", "Params.sketch4_length")
pad3 = body.newObject("PartDesign::Pad", "Pad002")
pad3.Profile = sketch4
pad3.setExpression("Length", "Params.pad3_length")

doc.recompute()
